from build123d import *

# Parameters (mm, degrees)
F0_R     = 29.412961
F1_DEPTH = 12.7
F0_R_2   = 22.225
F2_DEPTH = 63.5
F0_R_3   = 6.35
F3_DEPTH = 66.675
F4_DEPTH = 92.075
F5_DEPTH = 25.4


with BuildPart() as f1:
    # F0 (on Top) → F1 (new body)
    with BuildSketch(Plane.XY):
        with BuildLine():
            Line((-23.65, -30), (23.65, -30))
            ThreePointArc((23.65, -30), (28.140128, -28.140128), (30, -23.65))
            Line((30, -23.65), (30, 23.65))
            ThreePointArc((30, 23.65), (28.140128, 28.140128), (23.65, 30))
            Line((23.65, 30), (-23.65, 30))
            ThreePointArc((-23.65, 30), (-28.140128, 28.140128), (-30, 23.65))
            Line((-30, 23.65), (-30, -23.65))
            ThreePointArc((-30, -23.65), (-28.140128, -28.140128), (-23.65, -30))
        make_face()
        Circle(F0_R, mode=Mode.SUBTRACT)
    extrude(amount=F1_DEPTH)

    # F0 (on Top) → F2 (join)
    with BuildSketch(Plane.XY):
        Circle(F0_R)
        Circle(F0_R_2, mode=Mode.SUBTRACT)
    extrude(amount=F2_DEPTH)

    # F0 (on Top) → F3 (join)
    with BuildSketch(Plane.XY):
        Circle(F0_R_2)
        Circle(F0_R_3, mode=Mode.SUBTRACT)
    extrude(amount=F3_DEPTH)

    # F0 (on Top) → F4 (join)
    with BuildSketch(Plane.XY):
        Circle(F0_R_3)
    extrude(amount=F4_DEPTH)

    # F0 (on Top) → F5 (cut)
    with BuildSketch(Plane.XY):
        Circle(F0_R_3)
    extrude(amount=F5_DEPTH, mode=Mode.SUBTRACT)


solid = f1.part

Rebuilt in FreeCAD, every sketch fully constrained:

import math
import FreeCAD as App
import Part
import Sketcher

V = App.Vector
Q = App.Units.Quantity

doc = App.newDocument("Part")
params = doc.addObject("Spreadsheet::Sheet", "Params")
for row, (alias, value) in enumerate([
    ("sketch1_radius", "0.25 in"),
    ("pad1_length", "0.5 in"),
    ("sketch2_diameter", "1.75 in"),
    ("pad2_length", "2.5 in"),
    ("sketch3_diameter", "0.5 in"),
    ("sketch3_diameter2", "1.75 in"),
    ("pad3_length", "2.625 in"),
    ("sketch4_diameter", "0.5 in"),
    ("pad4_length", "3.625 in"),
    ("sketch5_diameter", "0.5 in"),
    ("pocket1_length", "1 in"),
], start=1):
    params.set(f"A{row}", alias)
    params.set(f"B{row}", "=" + value)
    params.setAlias(f"B{row}", alias)

body = doc.addObject("PartDesign::Body", "Body")

# Sketch on XY plane
sketch1 = body.newObject("Sketcher::SketchObject", "Sketch")
sketch1.AttachmentSupport = (doc.getObject("XY_Plane"), [""])
sketch1.MapMode = "FlatFace"
sketch1.addGeometry(Part.LineSegment(V(-23.65, -30, 0), V(23.65, -30, 0)), False)
sketch1.addGeometry(Part.ArcOfCircle(Part.Circle(V(23.65, -23.65, 0), V(0, 0, 1), 6.35), math.radians(-89.999998), math.radians(-0.000002)), False)
sketch1.addGeometry(Part.LineSegment(V(30, -23.65, 0), V(30, 23.65, 0)), False)
sketch1.addGeometry(Part.ArcOfCircle(Part.Circle(V(23.65, 23.65, 0), V(0, 0, 1), 6.35), math.radians(0.000002), math.radians(89.999998)), False)
sketch1.addGeometry(Part.LineSegment(V(23.65, 30, 0), V(-23.65, 30, 0)), False)
sketch1.addGeometry(Part.ArcOfCircle(Part.Circle(V(-23.65, 23.65, 0), V(0, 0, 1), 6.35), math.radians(90.000002), math.radians(179.999998)), False)
sketch1.addGeometry(Part.LineSegment(V(-30, 23.65, 0), V(-30, -23.65, 0)), False)
sketch1.addGeometry(Part.ArcOfCircle(Part.Circle(V(-23.65, -23.65, 0), V(0, 0, 1), 6.35), math.radians(-179.999998), math.radians(-90.000002)), False)
sketch1.addGeometry(Part.Circle(V(0, 0, 0), V(0, 0, 1), 29.412961), False)
sketch1.addConstraint(Sketcher.Constraint("Tangent", 0, 2, 1, 1))
sketch1.addConstraint(Sketcher.Constraint("Tangent", 1, 2, 2, 1))
sketch1.addConstraint(Sketcher.Constraint("Tangent", 2, 2, 3, 1))
sketch1.addConstraint(Sketcher.Constraint("Tangent", 3, 2, 4, 1))
sketch1.addConstraint(Sketcher.Constraint("Tangent", 4, 2, 5, 1))
sketch1.addConstraint(Sketcher.Constraint("Tangent", 5, 2, 6, 1))
sketch1.addConstraint(Sketcher.Constraint("Tangent", 6, 2, 7, 1))
sketch1.addConstraint(Sketcher.Constraint("Tangent", 7, 2, 0, 1))
sketch1.addConstraint(Sketcher.Constraint("Horizontal", 0))
sketch1.addConstraint(Sketcher.Constraint("Vertical", 2))
sketch1.addConstraint(Sketcher.Constraint("Horizontal", 4))
sketch1.addConstraint(Sketcher.Constraint("Vertical", 6))
sketch1.addConstraint(Sketcher.Constraint("Coincident", 8, 3, -1, 1))
sketch1.addConstraint(Sketcher.Constraint("Equal", 1, 3))
sketch1.addConstraint(Sketcher.Constraint("Equal", 3, 5))
sketch1.addConstraint(Sketcher.Constraint("Equal", 5, 7))
sketch1.addConstraint(Sketcher.Constraint("Symmetric", 1, 3, 5, 3, -1, 1))
sketch1.addConstraint(Sketcher.Constraint("Equal", 4, 2))
sketch1.addConstraint(Sketcher.Constraint("Radius", 1, Q("0.25 in")))
sketch1.addConstraint(Sketcher.Constraint("Diameter", 8, 58.825922))
sketch1.addConstraint(Sketcher.Constraint("DistanceX", 0, 1, 0, 2, 47.3))
sketch1.setExpression("Constraints[18]", "Params.sketch1_radius")
pad1 = body.newObject("PartDesign::Pad", "Pad")
pad1.Profile = sketch1
pad1.setExpression("Length", "Params.pad1_length")

# Sketch on XY plane
sketch2 = body.newObject("Sketcher::SketchObject", "Sketch001")
sketch2.AttachmentSupport = (doc.getObject("XY_Plane"), [""])
sketch2.MapMode = "FlatFace"
sketch2.addGeometry(Part.Circle(V(0, 0, 0), V(0, 0, 1), 29.412961), False)
sketch2.addGeometry(Part.Circle(V(0, 0, 0), V(0, 0, 1), 22.225), False)
sketch2.addConstraint(Sketcher.Constraint("Coincident", 0, 3, -1, 1))
sketch2.addConstraint(Sketcher.Constraint("Coincident", 1, 3, -1, 1))
sketch2.addConstraint(Sketcher.Constraint("Diameter", 1, Q("1.75 in")))
sketch2.addConstraint(Sketcher.Constraint("Diameter", 0, 58.825922))
sketch2.setExpression("Constraints[2]", "Params.sketch2_diameter")
pad2 = body.newObject("PartDesign::Pad", "Pad001")
pad2.Profile = sketch2
pad2.setExpression("Length", "Params.pad2_length")

# Sketch on XY plane
sketch3 = body.newObject("Sketcher::SketchObject", "Sketch002")
sketch3.AttachmentSupport = (doc.getObject("XY_Plane"), [""])
sketch3.MapMode = "FlatFace"
sketch3.addGeometry(Part.Circle(V(0, 0, 0), V(0, 0, 1), 22.225), False)
sketch3.addGeometry(Part.Circle(V(0, 0, 0), V(0, 0, 1), 6.35), False)
sketch3.addConstraint(Sketcher.Constraint("Coincident", 0, 3, -1, 1))
sketch3.addConstraint(Sketcher.Constraint("Coincident", 1, 3, -1, 1))
sketch3.addConstraint(Sketcher.Constraint("Diameter", 1, Q("0.5 in")))
sketch3.addConstraint(Sketcher.Constraint("Diameter", 0, Q("1.75 in")))
sketch3.setExpression("Constraints[2]", "Params.sketch3_diameter")
sketch3.setExpression("Constraints[3]", "Params.sketch3_diameter2")
pad3 = body.newObject("PartDesign::Pad", "Pad002")
pad3.Profile = sketch3
pad3.setExpression("Length", "Params.pad3_length")

# Sketch on XY plane
sketch4 = body.newObject("Sketcher::SketchObject", "Sketch003")
sketch4.AttachmentSupport = (doc.getObject("XY_Plane"), [""])
sketch4.MapMode = "FlatFace"
sketch4.addGeometry(Part.Circle(V(0, 0, 0), V(0, 0, 1), 6.35), False)
sketch4.addConstraint(Sketcher.Constraint("Coincident", 0, 3, -1, 1))
sketch4.addConstraint(Sketcher.Constraint("Diameter", 0, Q("0.5 in")))
sketch4.setExpression("Constraints[1]", "Params.sketch4_diameter")
pad4 = body.newObject("PartDesign::Pad", "Pad003")
pad4.Profile = sketch4
pad4.setExpression("Length", "Params.pad4_length")

# Sketch on XY plane
sketch5 = body.newObject("Sketcher::SketchObject", "Sketch004")
sketch5.AttachmentSupport = (doc.getObject("XY_Plane"), [""])
sketch5.MapMode = "FlatFace"
sketch5.addGeometry(Part.Circle(V(0, 0, 0), V(0, 0, 1), 6.35), False)
sketch5.addConstraint(Sketcher.Constraint("Coincident", 0, 3, -1, 1))
sketch5.addConstraint(Sketcher.Constraint("Diameter", 0, Q("0.5 in")))
sketch5.setExpression("Constraints[1]", "Params.sketch5_diameter")
pocket1 = body.newObject("PartDesign::Pocket", "Pocket")
pocket1.Profile = sketch5
pocket1.setExpression("Length", "Params.pocket1_length")
pocket1.Reversed = True

doc.recompute()
